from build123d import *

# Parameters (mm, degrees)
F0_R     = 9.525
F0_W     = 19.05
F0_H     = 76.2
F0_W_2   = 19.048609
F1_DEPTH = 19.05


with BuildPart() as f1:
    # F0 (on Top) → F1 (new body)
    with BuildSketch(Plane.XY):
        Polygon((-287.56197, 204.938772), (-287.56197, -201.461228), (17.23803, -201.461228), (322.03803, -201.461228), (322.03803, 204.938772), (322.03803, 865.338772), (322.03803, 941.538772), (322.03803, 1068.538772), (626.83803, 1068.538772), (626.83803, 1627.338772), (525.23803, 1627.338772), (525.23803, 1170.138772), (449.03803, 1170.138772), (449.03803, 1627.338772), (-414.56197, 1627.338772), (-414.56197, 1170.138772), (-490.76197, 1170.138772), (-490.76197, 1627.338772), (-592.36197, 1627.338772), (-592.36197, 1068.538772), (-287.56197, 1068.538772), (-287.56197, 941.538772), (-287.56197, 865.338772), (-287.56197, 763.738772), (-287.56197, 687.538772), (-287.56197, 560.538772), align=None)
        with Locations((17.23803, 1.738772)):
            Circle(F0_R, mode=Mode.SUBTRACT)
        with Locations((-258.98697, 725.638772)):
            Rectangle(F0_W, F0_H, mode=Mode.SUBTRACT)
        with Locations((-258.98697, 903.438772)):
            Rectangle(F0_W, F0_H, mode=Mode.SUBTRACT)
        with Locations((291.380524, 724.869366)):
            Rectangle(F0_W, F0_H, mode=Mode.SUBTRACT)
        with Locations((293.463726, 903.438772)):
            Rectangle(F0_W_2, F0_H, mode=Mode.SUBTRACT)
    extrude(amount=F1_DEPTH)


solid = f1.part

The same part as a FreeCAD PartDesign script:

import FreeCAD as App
import Part
import Sketcher

V = App.Vector
Q = App.Units.Quantity


def add_polygon(sketch, points):
    """Adds a closed chain of lines whose ends are joined by coincident constraints."""
    first, n = sketch.GeometryCount, len(points)
    for a, b in zip(points, points[1:] + points[:1]):
        sketch.addGeometry(Part.LineSegment(App.Vector(*a, 0), App.Vector(*b, 0)), False)
    for i in range(n):
        sketch.addConstraint(Sketcher.Constraint("Coincident", first + i, 2, first + (i + 1) % n, 1))

doc = App.newDocument("Part")
body = doc.addObject("PartDesign::Body", "Body")

sketch1 = body.newObject("Sketcher::SketchObject", "Sketch")
sketch1.AttachmentSupport = (doc.getObject("XY_Plane"), [""])
sketch1.MapMode = "FlatFace"
add_polygon(sketch1, [(-288, -201), (322, -201), (322, 1069), (627, 1069), (627, 1627), (525, 1627), (525, 1170), (449, 1170), (449, 1627), (-415, 1627), (-415, 1170), (-491, 1170), (-491, 1627), (-592, 1627), (-592, 1069), (-288, 1069)])
sketch1.addGeometry(Part.Circle(V(17, 2, 0), V(0, 0, 1), 10), False)
add_polygon(sketch1, [(-249, 688), (-269, 688), (-269, 764), (-249, 764)])
add_polygon(sketch1, [(-249, 865), (-269, 865), (-269, 942), (-249, 942)])
add_polygon(sketch1, [(301, 687), (282, 687), (282, 763), (301, 763)])
add_polygon(sketch1, [(303, 865), (284, 865), (284, 942), (303, 942)])
sketch1.addConstraint([
    Sketcher.Constraint("Horizontal", 0),
    Sketcher.Constraint("Vertical", 1),
    Sketcher.Constraint("Horizontal", 2),
    Sketcher.Constraint("Vertical", 3),
    Sketcher.Constraint("Horizontal", 4),
    Sketcher.Constraint("Vertical", 5),
    Sketcher.Constraint("Horizontal", 6),
    Sketcher.Constraint("Vertical", 7),
    Sketcher.Constraint("Horizontal", 8),
    Sketcher.Constraint("Vertical", 9),
    Sketcher.Constraint("Horizontal", 10),
    Sketcher.Constraint("Vertical", 11),
    Sketcher.Constraint("Horizontal", 12),
    Sketcher.Constraint("Vertical", 13),
    Sketcher.Constraint("Horizontal", 14),
    Sketcher.Constraint("Vertical", 15),
    Sketcher.Constraint("Horizontal", 17),
    Sketcher.Constraint("Vertical", 18),
    Sketcher.Constraint("Horizontal", 19),
    Sketcher.Constraint("Vertical", 20),
    Sketcher.Constraint("Horizontal", 21),
    Sketcher.Constraint("Vertical", 22),
    Sketcher.Constraint("Horizontal", 23),
    Sketcher.Constraint("Vertical", 24),
    Sketcher.Constraint("Horizontal", 25),
    Sketcher.Constraint("Vertical", 26),
    Sketcher.Constraint("Horizontal", 27),
    Sketcher.Constraint("Vertical", 28),
    Sketcher.Constraint("Horizontal", 29),
    Sketcher.Constraint("Vertical", 30),
    Sketcher.Constraint("Horizontal", 31),
    Sketcher.Constraint("Vertical", 32),
    Sketcher.Constraint("Horizontal", 4, 2, 7, 2),
    Sketcher.Constraint("Horizontal", 6, 2, 9, 2),
    Sketcher.Constraint("Horizontal", 8, 2, 11, 2),
    Sketcher.Constraint("Horizontal", 2, 2, 13, 2),
    Sketcher.Constraint("Horizontal", 24, 2, 29, 2),
    Sketcher.Constraint("Horizontal", 23, 2, 30, 2),
    Sketcher.Constraint("Vertical", 18, 2, 21, 2),
    Sketcher.Constraint("Vertical", 20, 2, 23, 2),
    Sketcher.Constraint("Equal", 6, 10),
    Sketcher.Constraint("Equal", 4, 12),
    Sketcher.Constraint("Equal", 2, 14),
    Sketcher.Constraint("Equal", 23, 25),
    Sketcher.Constraint("Equal", 10, 18),
    Sketcher.Constraint("Equal", 20, 22),
    Sketcher.Constraint("Equal", 24, 26),
    Sketcher.Constraint("Diameter", 16, Q("0.75 in")),
    Sketcher.Constraint("DistanceX", 0, 1, 0, 2, Q("24 in")),
    Sketcher.Constraint("DistanceX", 2, 1, 2, 2, Q("12 in")),
    Sketcher.Constraint("DistanceX", 4, 2, 4, 1, Q("4 in")),
    Sketcher.Constraint("DistanceX", 6, 2, 6, 1, Q("3 in")),
    Sketcher.Constraint("DistanceY", 1, 1, 1, 2, Q("50 in")),
    Sketcher.Constraint("DistanceY", 3, 1, 3, 2, Q("22 in")),
    Sketcher.Constraint("DistanceY", 5, 2, 5, 1, Q("18 in")),
    Sketcher.Constraint("DistanceX", 16, 3, 0, 2, Q("12 in")),
    Sketcher.Constraint("DistanceY", 0, 2, 16, 3, Q("8 in")),
    Sketcher.Constraint("DistanceY", 17, 2, 14, 2, Q("15 in")),
    Sketcher.Constraint("DistanceY", 18, 2, 21, 2, Q("4 in")),
    Sketcher.Constraint("DistanceX", 17, 2, 17, 1, Q("0.75 in")),
    Sketcher.Constraint("DistanceX", 14, 2, 19, 2, Q("1.5 in")),
    Sketcher.Constraint("DistanceX", 31, 2, 1, 2, Q("0.75 in")),
    Sketcher.Constraint("DistanceX", 29, 2, 29, 1, Q("19.048609 mm")),
    Sketcher.Constraint("DistanceX", -1, 1, 16, 3, Q("17.23803 mm")),
    Sketcher.Constraint("DistanceY", 0, 2, -1, 1, Q("201.461228 mm")),
    Sketcher.Constraint("DistanceX", -1, 1, 25, 2, Q("281.855524 mm")),
    Sketcher.Constraint("DistanceY", -1, 1, 25, 2, Q("686.769366 mm")),
])
pad1 = body.newObject("PartDesign::Pad", "Pad")
pad1.Profile = sketch1
pad1.Length = Q("0.75 in")

doc.recompute()
